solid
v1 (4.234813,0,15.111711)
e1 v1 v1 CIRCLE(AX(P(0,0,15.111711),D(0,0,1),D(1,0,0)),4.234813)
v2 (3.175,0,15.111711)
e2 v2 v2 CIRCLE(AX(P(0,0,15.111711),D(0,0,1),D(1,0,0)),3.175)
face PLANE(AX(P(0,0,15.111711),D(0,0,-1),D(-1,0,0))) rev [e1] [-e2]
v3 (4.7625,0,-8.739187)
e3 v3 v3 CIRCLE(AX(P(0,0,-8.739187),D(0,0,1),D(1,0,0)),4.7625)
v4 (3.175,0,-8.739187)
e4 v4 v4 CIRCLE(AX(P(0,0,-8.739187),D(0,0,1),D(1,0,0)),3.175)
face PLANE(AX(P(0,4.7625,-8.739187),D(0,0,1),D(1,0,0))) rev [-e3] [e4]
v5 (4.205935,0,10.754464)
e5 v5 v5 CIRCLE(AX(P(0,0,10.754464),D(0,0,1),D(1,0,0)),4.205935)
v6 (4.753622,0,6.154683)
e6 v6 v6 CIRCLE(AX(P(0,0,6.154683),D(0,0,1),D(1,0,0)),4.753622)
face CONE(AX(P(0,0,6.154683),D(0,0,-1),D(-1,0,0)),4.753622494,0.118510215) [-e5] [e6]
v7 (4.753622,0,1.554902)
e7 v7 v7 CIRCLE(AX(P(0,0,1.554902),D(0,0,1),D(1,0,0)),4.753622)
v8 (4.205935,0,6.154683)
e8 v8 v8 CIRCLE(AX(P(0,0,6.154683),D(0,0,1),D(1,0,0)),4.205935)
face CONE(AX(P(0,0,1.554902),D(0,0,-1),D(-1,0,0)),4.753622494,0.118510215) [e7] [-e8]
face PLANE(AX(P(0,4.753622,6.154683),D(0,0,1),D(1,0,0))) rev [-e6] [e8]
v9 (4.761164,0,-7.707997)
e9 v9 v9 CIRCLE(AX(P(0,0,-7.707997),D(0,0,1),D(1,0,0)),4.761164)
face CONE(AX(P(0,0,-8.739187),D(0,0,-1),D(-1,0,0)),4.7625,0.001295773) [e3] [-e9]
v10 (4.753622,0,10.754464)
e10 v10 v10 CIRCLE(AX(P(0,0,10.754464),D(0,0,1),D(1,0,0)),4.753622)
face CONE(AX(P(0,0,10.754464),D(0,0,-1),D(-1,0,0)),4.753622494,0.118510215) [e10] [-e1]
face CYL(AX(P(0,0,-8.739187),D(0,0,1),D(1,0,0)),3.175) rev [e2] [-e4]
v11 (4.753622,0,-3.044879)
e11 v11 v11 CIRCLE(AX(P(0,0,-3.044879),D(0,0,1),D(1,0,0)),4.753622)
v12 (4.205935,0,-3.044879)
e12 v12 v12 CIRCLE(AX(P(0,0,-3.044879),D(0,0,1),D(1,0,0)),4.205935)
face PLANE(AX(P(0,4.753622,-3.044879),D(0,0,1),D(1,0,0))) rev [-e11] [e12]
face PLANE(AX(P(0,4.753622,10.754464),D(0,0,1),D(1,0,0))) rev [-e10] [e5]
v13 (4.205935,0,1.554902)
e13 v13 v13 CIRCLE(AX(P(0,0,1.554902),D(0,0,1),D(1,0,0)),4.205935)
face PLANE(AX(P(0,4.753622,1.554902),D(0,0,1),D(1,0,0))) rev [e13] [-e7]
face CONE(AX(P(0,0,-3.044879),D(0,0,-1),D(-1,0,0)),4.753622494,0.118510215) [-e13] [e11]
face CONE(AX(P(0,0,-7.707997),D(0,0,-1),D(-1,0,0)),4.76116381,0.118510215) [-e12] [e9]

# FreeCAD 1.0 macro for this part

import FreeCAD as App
import Part
import Sketcher
from FreeCAD import Vector
Q = App.Units.Quantity


def add_polygon(sketch, points):
    """Adds a closed chain of lines whose ends are joined by coincident constraints."""
    first, n = sketch.GeometryCount, len(points)
    for a, b in zip(points, points[1:] + points[:1]):
        sketch.addGeometry(Part.LineSegment(App.Vector(*a, 0), App.Vector(*b, 0)), False)
    for i in range(n):
        sketch.addConstraint(Sketcher.Constraint("Coincident", first + i, 2, first + (i + 1) % n, 1))

doc = App.newDocument("Part")
body = doc.addObject("PartDesign::Body", "Body")

# Sketch on YZ plane
sketch1 = doc.addObject("Sketcher::SketchObject", "Sketch")
body.addObject(sketch1)
sketch1.AttachmentSupport = (doc.YZ_Plane, [""])
sketch1.MapMode = "FlatFace"
add_polygon(sketch1, [(4.23, 15.11), (0, 15.11), (0, -8.74), (4.76, -8.74), (4.76, -7.71), (4.22, -3.19), (4.21, -3.04), (4.75, -3.04), (4.22, 1.41), (4.21, 1.55), (4.75, 1.55), (4.22, 6.01), (4.21, 6.15), (4.75, 6.15), (4.22, 10.61), (4.21, 10.75), (4.75, 10.75)])  # lines 0-16
sketch1.addConstraint(Sketcher.Constraint("Horizontal", 0))
sketch1.addConstraint(Sketcher.Constraint("Vertical", 1))
sketch1.addConstraint(Sketcher.Constraint("Horizontal", 2))
sketch1.addConstraint(Sketcher.Constraint("Horizontal", 6))
sketch1.addConstraint(Sketcher.Constraint("Horizontal", 9))
sketch1.addConstraint(Sketcher.Constraint("Horizontal", 12))
sketch1.addConstraint(Sketcher.Constraint("Horizontal", 15))
sketch1.addConstraint(Sketcher.Constraint("PointOnObject", 0, 2, -2))
sketch1.addConstraint(Sketcher.Constraint("Parallel", 4, 5))
sketch1.addConstraint(Sketcher.Constraint("Parallel", 5, 7))
sketch1.addConstraint(Sketcher.Constraint("Parallel", 7, 8))
sketch1.addConstraint(Sketcher.Constraint("Parallel", 8, 10))
sketch1.addConstraint(Sketcher.Constraint("Parallel", 10, 11))
sketch1.addConstraint(Sketcher.Constraint("Parallel", 11, 13))
sketch1.addConstraint(Sketcher.Constraint("Parallel", 13, 14))
sketch1.addConstraint(Sketcher.Constraint("Parallel", 14, 16))
sketch1.addConstraint(Sketcher.Constraint("Vertical", 4, 2, 7, 2))
sketch1.addConstraint(Sketcher.Constraint("Vertical", 5, 2, 8, 2))
sketch1.addConstraint(Sketcher.Constraint("Vertical", 6, 2, 9, 2))
sketch1.addConstraint(Sketcher.Constraint("Vertical", 7, 2, 10, 2))
sketch1.addConstraint(Sketcher.Constraint("Vertical", 8, 2, 11, 2))
sketch1.addConstraint(Sketcher.Constraint("Vertical", 9, 2, 12, 2))
sketch1.addConstraint(Sketcher.Constraint("Vertical", 10, 2, 13, 2))
sketch1.addConstraint(Sketcher.Constraint("Vertical", 11, 2, 14, 2))
sketch1.addConstraint(Sketcher.Constraint("Vertical", 12, 2, 15, 2))
sketch1.addConstraint(Sketcher.Constraint("DistanceX", 2, 1, 2, 2, Q("0.1875 in")))
sketch1.addConstraint(Sketcher.Constraint("DistanceY", 1, 2, 1, 1, 23.850898))
sketch1.addConstraint(Sketcher.Constraint("DistanceY", -1, 1, 8, 2, 1.554902))
sketch1.addConstraint(Sketcher.Constraint("DistanceY", 3, 2, 4, 2, 4.514001))
sketch1.addConstraint(Sketcher.Constraint("DistanceY", 3, 2, 8, 2, 9.262899))
sketch1.addConstraint(Sketcher.Constraint("Distance", 3, 1.031192))
sketch1.addConstraint(Sketcher.Constraint("Distance", 5, 0.15017))
sketch1.addConstraint(Sketcher.Constraint("DistanceX", 0, 2, 0, 1, 4.234813))
sketch1.addConstraint(Sketcher.Constraint("DistanceX", 6, 1, 6, 2, 0.547688))
revolution = doc.addObject("PartDesign::Revolution", "Revolution")
body.addObject(revolution)
revolution.Profile = sketch1
revolution.ReferenceAxis = (sketch1, ["V_Axis"])
revolution.Angle = 360

# Sketch on XY plane
sketch2 = doc.addObject("Sketcher::SketchObject", "Sketch001")
body.addObject(sketch2)
sketch2.AttachmentSupport = (doc.XY_Plane, [""])
sketch2.MapMode = "FlatFace"
sketch2.AttachmentOffset = App.Placement(Vector(0, 0, 15.111711), App.Rotation())
sketch2.addGeometry(Part.Circle(Vector(0, 0, 0), Vector(0, 0, 1), 3.2), False)
sketch2.addConstraint(Sketcher.Constraint("Coincident", 0, 3, -1, 1))
sketch2.addConstraint(Sketcher.Constraint("Diameter", 0, Q("0.25 in")))
pocket1 = doc.addObject("PartDesign::Pocket", "Pocket")
body.addObject(pocket1)
pocket1.Profile = sketch2
pocket1.Type = "ThroughAll"

doc.recompute()
